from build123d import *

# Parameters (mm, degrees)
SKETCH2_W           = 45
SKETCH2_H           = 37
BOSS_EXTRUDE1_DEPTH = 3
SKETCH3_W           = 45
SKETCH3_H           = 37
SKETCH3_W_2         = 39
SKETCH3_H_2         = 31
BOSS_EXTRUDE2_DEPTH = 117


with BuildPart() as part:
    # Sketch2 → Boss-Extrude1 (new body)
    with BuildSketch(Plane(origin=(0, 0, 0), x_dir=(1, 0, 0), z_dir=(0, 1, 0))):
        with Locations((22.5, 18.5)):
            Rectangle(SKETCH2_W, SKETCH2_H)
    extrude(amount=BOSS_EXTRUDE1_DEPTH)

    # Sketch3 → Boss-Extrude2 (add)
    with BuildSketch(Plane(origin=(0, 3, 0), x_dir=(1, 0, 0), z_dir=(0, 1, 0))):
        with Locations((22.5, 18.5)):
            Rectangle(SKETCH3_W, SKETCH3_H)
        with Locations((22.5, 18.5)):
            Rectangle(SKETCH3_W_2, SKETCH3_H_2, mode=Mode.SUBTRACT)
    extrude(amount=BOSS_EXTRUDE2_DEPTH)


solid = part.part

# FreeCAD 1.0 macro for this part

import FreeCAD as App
import Part
import Sketcher

V = App.Vector


def add_polygon(sketch, points):
    """Adds a closed chain of lines whose ends are joined by coincident constraints."""
    first, n = sketch.GeometryCount, len(points)
    for a, b in zip(points, points[1:] + points[:1]):
        sketch.addGeometry(Part.LineSegment(App.Vector(*a, 0), App.Vector(*b, 0)), False)
    for i in range(n):
        sketch.addConstraint(Sketcher.Constraint("Coincident", first + i, 2, first + (i + 1) % n, 1))

doc = App.newDocument("Part")
body = doc.addObject("PartDesign::Body", "Body")

# Sketch on XZ plane
sketch1 = body.newObject("Sketcher::SketchObject", "Sketch")
sketch1.AttachmentSupport = (doc.getObject("XZ_Plane"), [""])
sketch1.MapMode = "FlatFace"
add_polygon(sketch1, [(0, -37), (0, 0), (45, 0), (45, -37)])  # lines 0-3
sketch1.addConstraint(Sketcher.Constraint("Vertical", 0))
sketch1.addConstraint(Sketcher.Constraint("Horizontal", 1))
sketch1.addConstraint(Sketcher.Constraint("Vertical", 2))
sketch1.addConstraint(Sketcher.Constraint("Horizontal", 3))
sketch1.addConstraint(Sketcher.Constraint("Coincident", 0, 2, -1, 1))
sketch1.addConstraint(Sketcher.Constraint("DistanceX", 1, 1, 1, 2, 45.0))
sketch1.addConstraint(Sketcher.Constraint("DistanceY", 0, 1, 0, 2, 37.0))
pad1 = body.newObject("PartDesign::Pad", "Pad")
pad1.Profile = sketch1
pad1.Length = 3
pad1.Reversed = True

# Sketch on XZ plane
sketch2 = body.newObject("Sketcher::SketchObject", "Sketch001")
sketch2.AttachmentSupport = (doc.getObject("XZ_Plane"), [""])
sketch2.MapMode = "FlatFace"
sketch2.AttachmentOffset = App.Placement(V(0, 0, -3), App.Rotation())
add_polygon(sketch2, [(0, -37), (0, 0), (45, 0), (45, -37)])  # lines 0-3
add_polygon(sketch2, [(42, -3), (3, -3), (3, -34), (42, -34)])  # lines 4-7
sketch2.addConstraint(Sketcher.Constraint("Vertical", 0))
sketch2.addConstraint(Sketcher.Constraint("Horizontal", 1))
sketch2.addConstraint(Sketcher.Constraint("Vertical", 2))
sketch2.addConstraint(Sketcher.Constraint("Horizontal", 3))
sketch2.addConstraint(Sketcher.Constraint("Horizontal", 4))
sketch2.addConstraint(Sketcher.Constraint("Vertical", 5))
sketch2.addConstraint(Sketcher.Constraint("Horizontal", 6))
sketch2.addConstraint(Sketcher.Constraint("Vertical", 7))
sketch2.addConstraint(Sketcher.Constraint("Coincident", 0, 2, -1, 1))
sketch2.addConstraint(Sketcher.Constraint("DistanceX", 1, 1, 1, 2, 45.0))
sketch2.addConstraint(Sketcher.Constraint("DistanceX", 4, 2, 4, 1, 39.0))
sketch2.addConstraint(Sketcher.Constraint("DistanceY", 0, 1, 0, 2, 37.0))
sketch2.addConstraint(Sketcher.Constraint("DistanceY", 5, 2, 5, 1, 31.0))
sketch2.addConstraint(Sketcher.Constraint("DistanceX", -1, 1, 4, 2, 3.0))
sketch2.addConstraint(Sketcher.Constraint("DistanceY", 4, 2, -1, 1, 3.0))
pad2 = body.newObject("PartDesign::Pad", "Pad001")
pad2.Profile = sketch2
pad2.Length = 117
pad2.Reversed = True

doc.recompute()
